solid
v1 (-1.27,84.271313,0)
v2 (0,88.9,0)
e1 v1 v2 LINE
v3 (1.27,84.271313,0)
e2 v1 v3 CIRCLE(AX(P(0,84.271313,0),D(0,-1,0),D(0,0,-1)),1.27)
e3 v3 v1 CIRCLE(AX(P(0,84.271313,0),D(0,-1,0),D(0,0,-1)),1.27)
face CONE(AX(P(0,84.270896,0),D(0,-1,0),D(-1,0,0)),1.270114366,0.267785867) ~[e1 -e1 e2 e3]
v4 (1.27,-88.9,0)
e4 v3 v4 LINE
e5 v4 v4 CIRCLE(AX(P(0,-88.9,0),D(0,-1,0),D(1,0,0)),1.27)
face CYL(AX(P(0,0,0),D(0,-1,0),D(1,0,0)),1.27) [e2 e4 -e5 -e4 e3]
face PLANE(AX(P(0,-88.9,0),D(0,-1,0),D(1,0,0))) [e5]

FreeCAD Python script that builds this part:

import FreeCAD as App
import Part
import Sketcher

V = App.Vector
Q = App.Units.Quantity

doc = App.newDocument("Part")
body = doc.addObject("PartDesign::Body", "Body")

sketch1 = body.newObject("Sketcher::SketchObject", "Sketch")
sketch1.AttachmentSupport = (doc.getObject("XZ_Plane"), [""])
sketch1.MapMode = "FlatFace"
sketch1.addGeometry(Part.Circle(V(0, 0, 0), V(0, 0, 1), 1.3), False)
sketch1.addConstraint([
    Sketcher.Constraint("Coincident", 0, 3, -1, 1),
    Sketcher.Constraint("Diameter", 0, Q("0.1 in")),
])
pad1 = body.newObject("PartDesign::Pad", "Pad")
pad1.Profile = sketch1
pad1.Length = Q("7 in")
pad1.Midplane = True

sketch2 = body.newObject("Sketcher::SketchObject", "Sketch001")
sketch2.AttachmentSupport = (doc.getObject("XY_Plane"), [""])
sketch2.MapMode = "FlatFace"
sketch2.addGeometry([
    Part.LineSegment(V(-1.3, 93.8, 0), V(-1.3, 84.3, 0)),
    Part.LineSegment(V(-1.3, 84.3, 0), V(0, 88.9, 0)),
    Part.LineSegment(V(0, 88.9, 0), V(0, 93.8, 0)),
    Part.LineSegment(V(0, 93.8, 0), V(-1.3, 93.8, 0)),
], False)
sketch2.addConstraint([
    Sketcher.Constraint("Coincident", 0, 2, 1, 1),
    Sketcher.Constraint("Coincident", 1, 2, 2, 1),
    Sketcher.Constraint("Coincident", 2, 2, 3, 1),
    Sketcher.Constraint("Coincident", 3, 2, 0, 1),
    Sketcher.Constraint("Vertical", 0),
    Sketcher.Constraint("Vertical", 2),
    Sketcher.Constraint("Horizontal", 3),
    Sketcher.Constraint("PointOnObject", 1, 2, -2),
    Sketcher.Constraint("DistanceY", -1, 1, 1, 2, Q("3.5 in")),
    Sketcher.Constraint("DistanceY", 2, 1, 2, 2, Q("0.1909999 in")),
    Sketcher.Constraint("DistanceX", 3, 2, 3, 1, 1.270114),
    Sketcher.Constraint("DistanceY", 0, 2, 0, 1, 9.480502),
])
groove = body.newObject("PartDesign::Groove", "Groove")
groove.Profile = sketch2
groove.ReferenceAxis = (sketch2, ["V_Axis"])
groove.Angle = 360

doc.recompute()
